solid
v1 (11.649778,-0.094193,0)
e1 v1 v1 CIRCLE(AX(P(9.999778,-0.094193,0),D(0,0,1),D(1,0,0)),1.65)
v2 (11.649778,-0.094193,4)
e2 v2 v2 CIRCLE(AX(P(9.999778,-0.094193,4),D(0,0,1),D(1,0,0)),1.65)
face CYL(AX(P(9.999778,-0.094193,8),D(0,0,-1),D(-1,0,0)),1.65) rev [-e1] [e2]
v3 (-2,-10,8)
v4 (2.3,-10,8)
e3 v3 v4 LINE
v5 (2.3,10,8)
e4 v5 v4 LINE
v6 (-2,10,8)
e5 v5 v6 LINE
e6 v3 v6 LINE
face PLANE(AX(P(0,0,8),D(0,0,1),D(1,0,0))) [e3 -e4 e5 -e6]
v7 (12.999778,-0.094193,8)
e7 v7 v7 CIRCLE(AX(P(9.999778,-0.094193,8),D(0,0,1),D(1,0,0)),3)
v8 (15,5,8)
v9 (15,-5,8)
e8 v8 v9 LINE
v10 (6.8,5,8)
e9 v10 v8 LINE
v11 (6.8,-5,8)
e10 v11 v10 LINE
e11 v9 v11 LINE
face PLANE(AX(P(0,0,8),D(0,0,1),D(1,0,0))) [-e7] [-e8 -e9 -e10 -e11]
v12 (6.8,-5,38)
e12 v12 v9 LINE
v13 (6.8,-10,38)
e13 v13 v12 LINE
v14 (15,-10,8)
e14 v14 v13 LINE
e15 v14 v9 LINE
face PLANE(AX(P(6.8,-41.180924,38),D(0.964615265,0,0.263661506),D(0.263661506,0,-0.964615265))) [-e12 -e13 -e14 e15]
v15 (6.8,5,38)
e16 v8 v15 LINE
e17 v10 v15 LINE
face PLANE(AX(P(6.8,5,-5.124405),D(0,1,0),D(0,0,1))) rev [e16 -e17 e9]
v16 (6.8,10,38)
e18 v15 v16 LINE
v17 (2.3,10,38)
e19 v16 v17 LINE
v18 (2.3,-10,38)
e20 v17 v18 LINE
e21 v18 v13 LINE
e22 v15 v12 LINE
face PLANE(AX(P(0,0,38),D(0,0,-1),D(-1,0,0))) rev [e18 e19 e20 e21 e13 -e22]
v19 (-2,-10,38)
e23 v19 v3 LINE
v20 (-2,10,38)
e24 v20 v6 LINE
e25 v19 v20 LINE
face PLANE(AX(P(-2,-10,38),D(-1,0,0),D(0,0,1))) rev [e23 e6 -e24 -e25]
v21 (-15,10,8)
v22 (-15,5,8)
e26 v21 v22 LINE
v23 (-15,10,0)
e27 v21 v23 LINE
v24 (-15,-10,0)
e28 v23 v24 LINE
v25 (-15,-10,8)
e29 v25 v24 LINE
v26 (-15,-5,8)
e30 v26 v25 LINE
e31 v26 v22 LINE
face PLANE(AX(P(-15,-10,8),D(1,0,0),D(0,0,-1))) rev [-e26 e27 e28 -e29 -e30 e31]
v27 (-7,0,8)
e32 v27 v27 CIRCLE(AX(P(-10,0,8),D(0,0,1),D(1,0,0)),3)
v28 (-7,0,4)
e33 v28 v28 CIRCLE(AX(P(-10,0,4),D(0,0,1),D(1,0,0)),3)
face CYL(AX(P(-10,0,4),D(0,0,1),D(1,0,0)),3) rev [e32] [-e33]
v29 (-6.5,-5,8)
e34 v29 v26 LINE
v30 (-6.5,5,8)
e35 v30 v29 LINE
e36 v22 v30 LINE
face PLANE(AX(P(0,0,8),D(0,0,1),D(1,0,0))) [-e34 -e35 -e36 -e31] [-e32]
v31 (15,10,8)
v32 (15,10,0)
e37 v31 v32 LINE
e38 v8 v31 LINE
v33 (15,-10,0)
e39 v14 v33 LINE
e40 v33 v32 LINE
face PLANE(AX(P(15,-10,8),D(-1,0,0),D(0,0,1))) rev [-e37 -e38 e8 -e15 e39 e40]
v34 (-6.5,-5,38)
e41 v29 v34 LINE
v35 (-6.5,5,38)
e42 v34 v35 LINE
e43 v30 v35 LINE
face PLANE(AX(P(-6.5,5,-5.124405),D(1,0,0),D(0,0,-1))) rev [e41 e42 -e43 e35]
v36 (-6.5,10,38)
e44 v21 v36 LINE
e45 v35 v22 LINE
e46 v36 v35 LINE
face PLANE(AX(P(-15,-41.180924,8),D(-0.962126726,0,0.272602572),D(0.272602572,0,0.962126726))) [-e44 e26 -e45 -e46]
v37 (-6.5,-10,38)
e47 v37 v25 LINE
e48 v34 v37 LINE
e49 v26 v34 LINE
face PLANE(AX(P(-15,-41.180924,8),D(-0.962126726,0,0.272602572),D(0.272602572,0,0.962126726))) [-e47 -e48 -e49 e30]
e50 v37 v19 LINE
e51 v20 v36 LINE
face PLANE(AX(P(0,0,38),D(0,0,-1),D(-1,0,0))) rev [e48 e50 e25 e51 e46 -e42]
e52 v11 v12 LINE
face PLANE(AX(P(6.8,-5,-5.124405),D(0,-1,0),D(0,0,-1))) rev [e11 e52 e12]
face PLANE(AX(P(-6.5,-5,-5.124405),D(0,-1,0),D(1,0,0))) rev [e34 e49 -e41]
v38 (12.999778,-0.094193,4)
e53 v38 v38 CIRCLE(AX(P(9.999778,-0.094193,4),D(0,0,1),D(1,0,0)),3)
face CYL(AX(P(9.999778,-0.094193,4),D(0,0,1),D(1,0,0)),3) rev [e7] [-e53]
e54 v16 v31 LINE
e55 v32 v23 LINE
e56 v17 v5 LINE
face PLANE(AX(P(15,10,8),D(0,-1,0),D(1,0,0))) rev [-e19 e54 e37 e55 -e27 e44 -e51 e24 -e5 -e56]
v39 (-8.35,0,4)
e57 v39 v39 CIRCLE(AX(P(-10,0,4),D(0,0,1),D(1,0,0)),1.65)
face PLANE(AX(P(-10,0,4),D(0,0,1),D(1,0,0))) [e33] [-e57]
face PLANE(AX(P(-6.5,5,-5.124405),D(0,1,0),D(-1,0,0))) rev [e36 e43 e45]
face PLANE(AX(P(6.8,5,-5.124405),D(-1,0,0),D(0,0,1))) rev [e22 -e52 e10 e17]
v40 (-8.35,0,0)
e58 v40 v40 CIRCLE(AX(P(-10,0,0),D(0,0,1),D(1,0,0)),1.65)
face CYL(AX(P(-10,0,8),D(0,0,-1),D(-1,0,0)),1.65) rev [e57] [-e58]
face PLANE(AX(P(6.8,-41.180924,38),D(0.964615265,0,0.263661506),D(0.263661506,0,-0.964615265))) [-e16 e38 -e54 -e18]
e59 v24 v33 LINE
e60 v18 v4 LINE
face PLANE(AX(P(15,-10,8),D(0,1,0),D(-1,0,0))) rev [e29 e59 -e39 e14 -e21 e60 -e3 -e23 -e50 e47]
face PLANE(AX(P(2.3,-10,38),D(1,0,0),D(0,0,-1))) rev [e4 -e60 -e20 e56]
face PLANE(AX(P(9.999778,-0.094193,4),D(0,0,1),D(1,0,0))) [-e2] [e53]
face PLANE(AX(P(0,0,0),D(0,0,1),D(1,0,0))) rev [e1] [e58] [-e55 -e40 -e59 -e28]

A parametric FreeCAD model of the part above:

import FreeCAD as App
import Part
import Sketcher

V = App.Vector
Q = App.Units.Quantity


def add_polygon(sketch, points):
    """Adds a closed chain of lines whose ends are joined by coincident constraints."""
    first, n = sketch.GeometryCount, len(points)
    for a, b in zip(points, points[1:] + points[:1]):
        sketch.addGeometry(Part.LineSegment(App.Vector(*a, 0), App.Vector(*b, 0)), False)
    for i in range(n):
        sketch.addConstraint(Sketcher.Constraint("Coincident", first + i, 2, first + (i + 1) % n, 1))

doc = App.newDocument("Part")
body = doc.addObject("PartDesign::Body", "Body")

# Sketch on XY plane
sketch1 = body.newObject("Sketcher::SketchObject", "Sketch")
sketch1.AttachmentSupport = (doc.getObject("XY_Plane"), [""])
sketch1.MapMode = "FlatFace"
add_polygon(sketch1, [(-15, 10), (-15, -10), (15, -10), (15, 10)])  # lines 0-3
sketch1.addGeometry(Part.Circle(V(10, -0.1, 0), V(0, 0, 1), 1.6), False)  # 4
sketch1.addGeometry(Part.Circle(V(-10, 0, 0), V(0, 0, 1), 1.6), False)  # 5
sketch1.addConstraint([
    Sketcher.Constraint("Vertical", 0),
    Sketcher.Constraint("Horizontal", 1),
    Sketcher.Constraint("Vertical", 2),
    Sketcher.Constraint("Horizontal", 3),
    Sketcher.Constraint("Equal", 4, 5),
    Sketcher.Constraint("Symmetric", 0, 2, 2, 2, -1, 1),
    Sketcher.Constraint("PointOnObject", 5, 3, -1),
    Sketcher.Constraint("Diameter", 4, Q("3.3 mm")),
    Sketcher.Constraint("DistanceX", 1, 1, 1, 2, Q("30 mm")),
    Sketcher.Constraint("DistanceY", 0, 2, 0, 1, Q("20 mm")),
    Sketcher.Constraint("DistanceX", 5, 3, -1, 1, Q("10 mm")),
    Sketcher.Constraint("DistanceX", -1, 1, 4, 3, Q("9.999778 mm")),
    Sketcher.Constraint("DistanceY", 4, 3, -1, 1, Q("0.094193 mm")),
])
pad1 = body.newObject("PartDesign::Pad", "Pad")
pad1.Profile = sketch1
pad1.Length = 8

# Sketch on XY plane
sketch2 = body.newObject("Sketcher::SketchObject", "Sketch001")
sketch2.AttachmentSupport = (doc.getObject("XY_Plane"), [""])
sketch2.MapMode = "FlatFace"
sketch2.AttachmentOffset = App.Placement(V(0, 0, 8), App.Rotation())
add_polygon(sketch2, [(-6.5, 10), (-6.5, -10), (-2, -10), (-2, 10)])  # lines 0-3
add_polygon(sketch2, [(2.3, 10), (2.3, -10), (6.8, -10), (6.8, 10)])  # lines 4-7
sketch2.addConstraint([
    Sketcher.Constraint("Vertical", 0),
    Sketcher.Constraint("Horizontal", 1),
    Sketcher.Constraint("Vertical", 2),
    Sketcher.Constraint("Horizontal", 3),
    Sketcher.Constraint("Vertical", 4),
    Sketcher.Constraint("Horizontal", 5),
    Sketcher.Constraint("Vertical", 6),
    Sketcher.Constraint("Horizontal", 7),
    Sketcher.Constraint("Horizontal", 1, 2, 4, 2),
    Sketcher.Constraint("Horizontal", 3, 2, 6, 2),
    Sketcher.Constraint("Equal", 3, 5),
    Sketcher.Constraint("DistanceY", 0, 2, 0, 1, Q("20 mm")),
    Sketcher.Constraint("DistanceX", 1, 1, 1, 2, Q("4.5 mm")),
    Sketcher.Constraint("DistanceY", 0, 2, -1, 1, Q("10 mm")),
    Sketcher.Constraint("DistanceX", 1, 2, -1, 1, Q("2 mm")),
    Sketcher.Constraint("DistanceX", -1, 1, 4, 2, Q("2.3 mm")),
])
pad2 = body.newObject("PartDesign::Pad", "Pad001")
pad2.Profile = sketch2
pad2.Length = 30

# Sketch on XZ plane
sketch3 = body.newObject("Sketcher::SketchObject", "Sketch002")
sketch3.AttachmentSupport = (doc.getObject("XZ_Plane"), [""])
sketch3.MapMode = "FlatFace"
sketch3.AttachmentOffset = App.Placement(V(0, 0, -10), App.Rotation())
add_polygon(sketch3, [(-15, 8), (-6, 38), (-6, 8)])  # lines 0-2
add_polygon(sketch3, [(15, 8), (7, 8), (7, 38)])  # lines 3-5
sketch3.addConstraint([
    Sketcher.Constraint("Vertical", 1),
    Sketcher.Constraint("Horizontal", 2),
    Sketcher.Constraint("Horizontal", 3),
    Sketcher.Constraint("Vertical", 4),
    Sketcher.Constraint("Symmetric", 2, 2, 5, 2, -2),
    Sketcher.Constraint("Horizontal", 0, 2, 4, 2),
    Sketcher.Constraint("DistanceY", 1, 2, 1, 1, Q("30 mm")),
    Sketcher.Constraint("DistanceX", 2, 2, 2, 1, Q("8.5 mm")),
    Sketcher.Constraint("DistanceX", 3, 2, 3, 1, Q("8.2 mm")),
    Sketcher.Constraint("DistanceY", -1, 1, 0, 2, Q("38 mm")),
    Sketcher.Constraint("DistanceX", 2, 2, -1, 1, Q("15 mm")),
])
pad3 = body.newObject("PartDesign::Pad", "Pad002")
pad3.Profile = sketch3
pad3.Length = 20

# Sketch on XY plane
sketch4 = body.newObject("Sketcher::SketchObject", "Sketch003")
sketch4.AttachmentSupport = (doc.getObject("XY_Plane"), [""])
sketch4.MapMode = "FlatFace"
sketch4.AttachmentOffset = App.Placement(V(0, 0, 38), App.Rotation())
add_polygon(sketch4, [(-15, 5), (-15, -5), (-6, -5), (-6, 5)])  # lines 0-3
add_polygon(sketch4, [(7, 5), (7, -5), (15, -5), (15, 5)])  # lines 4-7
sketch4.addConstraint([
    Sketcher.Constraint("Vertical", 0),
    Sketcher.Constraint("Horizontal", 1),
    Sketcher.Constraint("Vertical", 2),
    Sketcher.Constraint("Horizontal", 3),
    Sketcher.Constraint("Vertical", 4),
    Sketcher.Constraint("Horizontal", 5),
    Sketcher.Constraint("Vertical", 6),
    Sketcher.Constraint("Horizontal", 7),
    Sketcher.Constraint("Symmetric", 3, 2, 5, 2, -1, 1),
    Sketcher.Constraint("Horizontal", 1, 2, 4, 2),
    Sketcher.Constraint("Horizontal", 3, 2, 6, 2),
    Sketcher.Constraint("DistanceY", 0, 2, 0, 1, Q("10 mm")),
    Sketcher.Constraint("DistanceX", 1, 1, 1, 2, Q("8.5 mm")),
    Sketcher.Constraint("DistanceX", 5, 1, 5, 2, Q("8.2 mm")),
    Sketcher.Constraint("DistanceX", 0, 2, -1, 1, Q("15 mm")),
])
pocket1 = body.newObject("PartDesign::Pocket", "Pocket")
pocket1.Profile = sketch4
pocket1.Length = 30

# Sketch on XY plane
sketch5 = body.newObject("Sketcher::SketchObject", "Sketch004")
sketch5.AttachmentSupport = (doc.getObject("XY_Plane"), [""])
sketch5.MapMode = "FlatFace"
sketch5.AttachmentOffset = App.Placement(V(0, 0, 8), App.Rotation())
sketch5.addGeometry([
    Part.Circle(V(-10, 0, 0), V(0, 0, 1), 3),
    Part.Circle(V(10, -0.1, 0), V(0, 0, 1), 3),
], False)
sketch5.addConstraint([
    Sketcher.Constraint("Equal", 0, 1),
    Sketcher.Constraint("PointOnObject", 0, 3, -1),
    Sketcher.Constraint("Diameter", 0, Q("6 mm")),
    Sketcher.Constraint("DistanceX", 0, 3, -1, 1, Q("10 mm")),
    Sketcher.Constraint("DistanceX", -1, 1, 1, 3, Q("9.999778 mm")),
    Sketcher.Constraint("DistanceY", 1, 3, -1, 1, Q("0.094193 mm")),
])
pocket2 = body.newObject("PartDesign::Pocket", "Pocket001")
pocket2.Profile = sketch5
pocket2.Length = 4

doc.recompute()
